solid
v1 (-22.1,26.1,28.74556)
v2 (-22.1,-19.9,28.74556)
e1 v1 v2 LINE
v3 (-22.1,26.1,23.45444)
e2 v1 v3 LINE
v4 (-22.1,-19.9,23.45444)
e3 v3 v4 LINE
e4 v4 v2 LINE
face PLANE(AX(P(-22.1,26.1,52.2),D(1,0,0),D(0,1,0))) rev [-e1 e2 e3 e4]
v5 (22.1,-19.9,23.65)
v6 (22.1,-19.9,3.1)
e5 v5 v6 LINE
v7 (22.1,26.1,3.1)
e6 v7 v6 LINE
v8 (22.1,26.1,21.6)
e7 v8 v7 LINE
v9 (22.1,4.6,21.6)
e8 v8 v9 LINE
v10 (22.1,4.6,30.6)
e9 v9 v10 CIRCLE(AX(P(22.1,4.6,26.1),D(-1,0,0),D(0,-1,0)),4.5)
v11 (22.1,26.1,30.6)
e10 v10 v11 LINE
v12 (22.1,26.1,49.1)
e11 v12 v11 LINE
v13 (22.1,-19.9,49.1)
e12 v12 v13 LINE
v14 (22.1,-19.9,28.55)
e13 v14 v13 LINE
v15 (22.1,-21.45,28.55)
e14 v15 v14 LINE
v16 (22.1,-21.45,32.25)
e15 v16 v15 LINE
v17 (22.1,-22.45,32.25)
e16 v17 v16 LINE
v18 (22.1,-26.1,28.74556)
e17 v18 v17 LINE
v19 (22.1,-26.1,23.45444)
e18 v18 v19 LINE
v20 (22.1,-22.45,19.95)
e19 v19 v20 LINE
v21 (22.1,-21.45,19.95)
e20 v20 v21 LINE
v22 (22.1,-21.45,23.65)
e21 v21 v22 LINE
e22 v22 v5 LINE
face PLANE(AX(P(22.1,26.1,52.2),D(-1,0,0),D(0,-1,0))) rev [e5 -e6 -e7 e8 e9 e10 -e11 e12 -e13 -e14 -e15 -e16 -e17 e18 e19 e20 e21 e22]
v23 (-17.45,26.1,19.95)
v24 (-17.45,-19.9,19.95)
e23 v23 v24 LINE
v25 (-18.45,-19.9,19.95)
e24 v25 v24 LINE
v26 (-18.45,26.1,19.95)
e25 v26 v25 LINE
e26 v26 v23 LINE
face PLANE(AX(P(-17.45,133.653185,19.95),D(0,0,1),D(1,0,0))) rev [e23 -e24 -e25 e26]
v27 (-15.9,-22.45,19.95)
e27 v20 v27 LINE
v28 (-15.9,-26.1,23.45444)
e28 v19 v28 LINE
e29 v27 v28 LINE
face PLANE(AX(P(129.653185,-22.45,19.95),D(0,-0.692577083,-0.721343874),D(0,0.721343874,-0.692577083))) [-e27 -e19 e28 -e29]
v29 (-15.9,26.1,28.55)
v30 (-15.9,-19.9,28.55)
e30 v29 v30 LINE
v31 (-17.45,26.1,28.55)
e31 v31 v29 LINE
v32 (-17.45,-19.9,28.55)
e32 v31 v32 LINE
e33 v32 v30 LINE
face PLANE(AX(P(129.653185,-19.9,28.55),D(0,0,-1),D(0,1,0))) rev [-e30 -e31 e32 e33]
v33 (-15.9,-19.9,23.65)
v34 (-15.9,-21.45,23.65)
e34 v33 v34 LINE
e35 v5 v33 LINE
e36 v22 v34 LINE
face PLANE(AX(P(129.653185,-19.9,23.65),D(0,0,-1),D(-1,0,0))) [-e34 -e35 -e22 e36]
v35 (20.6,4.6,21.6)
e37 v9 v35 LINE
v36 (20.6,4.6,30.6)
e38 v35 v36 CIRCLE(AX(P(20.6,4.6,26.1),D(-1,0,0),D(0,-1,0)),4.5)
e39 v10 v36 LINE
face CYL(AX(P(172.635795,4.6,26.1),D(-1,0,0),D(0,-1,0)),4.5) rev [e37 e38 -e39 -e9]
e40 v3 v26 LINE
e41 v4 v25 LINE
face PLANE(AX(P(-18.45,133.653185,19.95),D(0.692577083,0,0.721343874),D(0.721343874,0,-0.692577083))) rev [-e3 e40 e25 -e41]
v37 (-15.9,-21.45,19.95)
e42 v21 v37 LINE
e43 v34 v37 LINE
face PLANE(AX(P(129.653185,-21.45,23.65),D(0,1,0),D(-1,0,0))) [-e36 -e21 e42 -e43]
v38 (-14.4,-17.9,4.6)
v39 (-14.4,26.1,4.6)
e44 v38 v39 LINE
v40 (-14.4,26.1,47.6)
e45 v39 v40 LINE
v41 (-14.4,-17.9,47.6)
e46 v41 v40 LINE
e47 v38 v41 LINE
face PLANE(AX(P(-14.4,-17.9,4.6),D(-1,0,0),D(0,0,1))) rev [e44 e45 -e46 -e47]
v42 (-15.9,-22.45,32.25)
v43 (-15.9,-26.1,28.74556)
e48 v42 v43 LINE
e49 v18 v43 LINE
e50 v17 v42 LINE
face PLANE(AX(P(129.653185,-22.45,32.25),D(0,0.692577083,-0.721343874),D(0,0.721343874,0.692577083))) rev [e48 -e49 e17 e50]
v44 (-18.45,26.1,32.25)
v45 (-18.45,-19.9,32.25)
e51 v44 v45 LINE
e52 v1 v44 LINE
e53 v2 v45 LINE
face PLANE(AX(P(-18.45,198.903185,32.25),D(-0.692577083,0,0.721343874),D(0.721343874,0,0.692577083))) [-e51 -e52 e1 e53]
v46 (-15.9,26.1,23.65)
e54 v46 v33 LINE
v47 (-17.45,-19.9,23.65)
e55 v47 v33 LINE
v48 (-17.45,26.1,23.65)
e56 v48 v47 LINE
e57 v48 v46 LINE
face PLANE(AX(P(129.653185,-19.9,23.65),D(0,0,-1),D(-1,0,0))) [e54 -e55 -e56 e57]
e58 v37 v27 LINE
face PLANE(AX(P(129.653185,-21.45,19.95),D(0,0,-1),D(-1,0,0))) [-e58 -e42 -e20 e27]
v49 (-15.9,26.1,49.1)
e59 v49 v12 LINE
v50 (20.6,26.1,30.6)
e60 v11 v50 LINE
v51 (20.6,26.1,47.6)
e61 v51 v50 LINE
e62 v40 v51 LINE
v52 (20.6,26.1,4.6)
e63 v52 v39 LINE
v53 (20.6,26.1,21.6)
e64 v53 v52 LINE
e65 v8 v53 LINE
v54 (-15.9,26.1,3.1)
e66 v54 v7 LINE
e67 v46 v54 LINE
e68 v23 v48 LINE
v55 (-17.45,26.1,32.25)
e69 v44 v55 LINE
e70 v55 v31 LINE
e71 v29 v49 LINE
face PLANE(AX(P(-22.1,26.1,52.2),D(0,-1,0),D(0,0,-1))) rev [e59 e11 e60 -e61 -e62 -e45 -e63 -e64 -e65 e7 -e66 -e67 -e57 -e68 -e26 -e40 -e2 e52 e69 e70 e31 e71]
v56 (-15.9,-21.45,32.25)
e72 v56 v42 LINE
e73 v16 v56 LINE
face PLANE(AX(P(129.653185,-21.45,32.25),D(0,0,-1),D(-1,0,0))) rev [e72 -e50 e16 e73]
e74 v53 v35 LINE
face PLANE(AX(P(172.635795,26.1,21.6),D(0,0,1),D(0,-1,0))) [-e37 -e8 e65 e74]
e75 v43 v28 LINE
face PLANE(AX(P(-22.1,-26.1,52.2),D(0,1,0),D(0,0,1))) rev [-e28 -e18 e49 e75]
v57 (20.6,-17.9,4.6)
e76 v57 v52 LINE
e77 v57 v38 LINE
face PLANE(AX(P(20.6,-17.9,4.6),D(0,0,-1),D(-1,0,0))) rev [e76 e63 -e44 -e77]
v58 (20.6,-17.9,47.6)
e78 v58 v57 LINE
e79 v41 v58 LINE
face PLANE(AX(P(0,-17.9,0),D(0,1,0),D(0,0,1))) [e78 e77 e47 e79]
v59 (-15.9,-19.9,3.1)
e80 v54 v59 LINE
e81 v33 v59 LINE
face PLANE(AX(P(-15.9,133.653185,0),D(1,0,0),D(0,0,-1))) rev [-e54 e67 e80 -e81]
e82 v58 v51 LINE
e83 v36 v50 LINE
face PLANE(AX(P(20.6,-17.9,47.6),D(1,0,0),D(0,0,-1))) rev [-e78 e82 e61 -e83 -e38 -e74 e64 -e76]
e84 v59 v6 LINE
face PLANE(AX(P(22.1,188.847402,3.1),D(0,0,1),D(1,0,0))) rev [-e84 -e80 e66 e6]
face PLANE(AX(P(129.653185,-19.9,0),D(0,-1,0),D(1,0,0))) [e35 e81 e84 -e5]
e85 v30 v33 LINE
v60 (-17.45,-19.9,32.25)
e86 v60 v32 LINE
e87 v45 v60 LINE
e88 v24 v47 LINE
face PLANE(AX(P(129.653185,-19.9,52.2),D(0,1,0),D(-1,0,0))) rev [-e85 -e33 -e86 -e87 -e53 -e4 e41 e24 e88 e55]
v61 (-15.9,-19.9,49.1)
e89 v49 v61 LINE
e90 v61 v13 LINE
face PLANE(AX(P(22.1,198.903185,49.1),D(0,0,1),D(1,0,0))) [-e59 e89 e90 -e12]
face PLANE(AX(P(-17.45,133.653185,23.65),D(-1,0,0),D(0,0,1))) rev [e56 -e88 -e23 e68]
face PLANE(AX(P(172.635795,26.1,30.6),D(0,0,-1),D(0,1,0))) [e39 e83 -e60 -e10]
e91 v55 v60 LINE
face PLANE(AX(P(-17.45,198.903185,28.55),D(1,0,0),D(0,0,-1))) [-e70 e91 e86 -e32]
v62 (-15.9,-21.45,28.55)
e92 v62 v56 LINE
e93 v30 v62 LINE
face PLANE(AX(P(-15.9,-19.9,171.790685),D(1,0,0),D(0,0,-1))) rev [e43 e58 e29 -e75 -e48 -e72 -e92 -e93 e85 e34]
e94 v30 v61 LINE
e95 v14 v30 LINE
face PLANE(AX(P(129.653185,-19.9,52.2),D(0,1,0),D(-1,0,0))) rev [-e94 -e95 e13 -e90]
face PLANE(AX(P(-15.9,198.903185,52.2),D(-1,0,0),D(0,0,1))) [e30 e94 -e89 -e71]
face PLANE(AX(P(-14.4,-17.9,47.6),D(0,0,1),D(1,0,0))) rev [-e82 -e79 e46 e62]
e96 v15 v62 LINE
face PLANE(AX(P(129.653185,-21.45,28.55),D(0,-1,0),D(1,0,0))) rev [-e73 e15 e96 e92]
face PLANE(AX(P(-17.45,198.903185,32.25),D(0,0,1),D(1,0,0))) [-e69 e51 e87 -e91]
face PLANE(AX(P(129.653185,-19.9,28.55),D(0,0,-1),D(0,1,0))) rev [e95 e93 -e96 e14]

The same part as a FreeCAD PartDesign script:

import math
import FreeCAD as App
import Part
import Sketcher
from FreeCAD import Vector
Q = App.Units.Quantity


def add_polygon(sketch, points):
    """Adds a closed chain of lines whose ends are joined by coincident constraints."""
    first, n = sketch.GeometryCount, len(points)
    for a, b in zip(points, points[1:] + points[:1]):
        sketch.addGeometry(Part.LineSegment(App.Vector(*a, 0), App.Vector(*b, 0)), False)
    for i in range(n):
        sketch.addConstraint(Sketcher.Constraint("Coincident", first + i, 2, first + (i + 1) % n, 1))

doc = App.newDocument("Part")
body = doc.addObject("PartDesign::Body", "Body")

# Sketch on XY plane
sketch1 = doc.addObject("Sketcher::SketchObject", "Sketch")
body.addObject(sketch1)
sketch1.AttachmentSupport = (doc.XY_Plane, [""])
sketch1.MapMode = "FlatFace"
add_polygon(sketch1, [(-22, 26), (-22, -26), (22, -26), (22, 26)])  # lines 0-3
sketch1.addConstraint([
    Sketcher.Constraint("Vertical", 0),
    Sketcher.Constraint("Horizontal", 1),
    Sketcher.Constraint("Vertical", 2),
    Sketcher.Constraint("Horizontal", 3),
    Sketcher.Constraint("Symmetric", 0, 2, 2, 2, -1, 1),
    Sketcher.Constraint("DistanceX", 1, 1, 1, 2, Q("44.2 mm")),
    Sketcher.Constraint("DistanceY", 0, 2, 0, 1, Q("52.2 mm")),
])
pad1 = doc.addObject("PartDesign::Pad", "Pad")
body.addObject(pad1)
pad1.Profile = sketch1
pad1.Length = 52.2

# Sketch on YZ plane
sketch2 = doc.addObject("Sketcher::SketchObject", "Sketch001")
body.addObject(sketch2)
sketch2.AttachmentSupport = (doc.YZ_Plane, [""])
sketch2.MapMode = "FlatFace"
sketch2.AttachmentOffset = App.Placement(Vector(0, 0, 22.1), App.Rotation())
add_polygon(sketch2, [(-19.9, 28.6), (-19.9, 201.4), (-295.7, 315.1), (-409.5, 39.2), (-133.7, -74.6), (-26.1, 28.7), (-22.4, 32.2), (-21.4, 32.2), (-21.4, 28.6)])  # lines 0-8
sketch2.addConstraint([
    Sketcher.Constraint("Vertical", 0),
    Sketcher.Constraint("Horizontal", 6),
    Sketcher.Constraint("Vertical", 7),
    Sketcher.Constraint("Horizontal", 8),
    Sketcher.Constraint("Perpendicular", 1, 2),
    Sketcher.Constraint("Perpendicular", 2, 3),
    Sketcher.Constraint("Parallel", 4, 5),
    Sketcher.Constraint("Equal", 1, 3),
    Sketcher.Constraint("DistanceX", 6, 1, 6, 2, Q("1 mm")),
    Sketcher.Constraint("DistanceY", 7, 2, 7, 1, Q("3.7 mm")),
    Sketcher.Constraint("DistanceX", 8, 1, 8, 2, Q("1.55 mm")),
    Sketcher.Constraint("DistanceX", 0, 2, -1, 1, Q("19.9 mm")),
    Sketcher.Constraint("DistanceX", 4, 2, -1, 1, Q("26.1 mm")),
    Sketcher.Constraint("Distance", 5, Q("5.06 mm")),
    Sketcher.Constraint("DistanceY", -1, 1, 5, 2, Q("32.25 mm")),
    Sketcher.Constraint("DistanceY", 0, 1, 0, 2, Q("172.802291 mm")),
    Sketcher.Constraint("DistanceY", 3, 2, -1, 1, Q("74.553898 mm")),
    Sketcher.Constraint("Distance", 1, Q("298.304581 mm")),
])
pocket1 = doc.addObject("PartDesign::Pocket", "Pocket")
body.addObject(pocket1)
pocket1.Profile = sketch2
pocket1.Type = "ThroughAll"
pocket1.Midplane = True

# Sketch on YZ plane
sketch3 = doc.addObject("Sketcher::SketchObject", "Sketch002")
body.addObject(sketch3)
sketch3.AttachmentSupport = (doc.YZ_Plane, [""])
sketch3.MapMode = "FlatFace"
sketch3.AttachmentOffset = App.Placement(Vector(0, 0, 22.1), App.Rotation())
add_polygon(sketch3, [(-19.9, -149.2), (-19.9, 23.6), (-21.4, 23.6), (-21.4, 19.9), (-22.4, 19.9), (-26.1, 23.5), (-133.7, 126.8), (-409.5, 13), (-295.7, -262.9)])  # lines 0-8
sketch3.addConstraint([
    Sketcher.Constraint("Vertical", 0),
    Sketcher.Constraint("Horizontal", 1),
    Sketcher.Constraint("Vertical", 2),
    Sketcher.Constraint("Horizontal", 3),
    Sketcher.Constraint("Parallel", 4, 5),
    Sketcher.Constraint("Perpendicular", 6, 7),
    Sketcher.Constraint("Perpendicular", 7, 8),
    Sketcher.Constraint("Equal", 6, 8),
    Sketcher.Constraint("DistanceX", 3, 2, 3, 1, Q("1 mm")),
    Sketcher.Constraint("DistanceY", 2, 2, 2, 1, Q("3.7 mm")),
    Sketcher.Constraint("DistanceX", 1, 2, 1, 1, Q("1.55 mm")),
    Sketcher.Constraint("DistanceX", 0, 2, -1, 1, Q("19.9 mm")),
    Sketcher.Constraint("DistanceX", 4, 2, -1, 1, Q("26.1 mm")),
    Sketcher.Constraint("Distance", 4, Q("5.06 mm")),
    Sketcher.Constraint("DistanceY", -1, 1, 0, 2, Q("23.65 mm")),
    Sketcher.Constraint("DistanceY", 0, 1, 0, 2, Q("172.802291 mm")),
    Sketcher.Constraint("DistanceY", -1, 1, 5, 2, Q("126.753898 mm")),
    Sketcher.Constraint("Distance", 6, Q("298.304581 mm")),
])
pocket2 = doc.addObject("PartDesign::Pocket", "Pocket001")
body.addObject(pocket2)
pocket2.Profile = sketch3
pocket2.Type = "ThroughAll"
pocket2.Midplane = True

# Sketch on XZ plane
sketch4 = doc.addObject("Sketcher::SketchObject", "Sketch003")
body.addObject(sketch4)
sketch4.AttachmentSupport = (doc.XZ_Plane, [""])
sketch4.MapMode = "FlatFace"
sketch4.AttachmentOffset = App.Placement(Vector(0, 0, -26.1), App.Rotation())
add_polygon(sketch4, [(-15.9, 191.3), (-15.9, 28.6), (-17.4, 28.6), (-17.4, 32.2), (-18.4, 32.2), (-22.1, 28.7), (-122.5, -67.6), (-379.8, 38.3), (-273.2, 297.2)])  # lines 0-8
sketch4.addConstraint([
    Sketcher.Constraint("Vertical", 0),
    Sketcher.Constraint("Horizontal", 1),
    Sketcher.Constraint("Vertical", 2),
    Sketcher.Constraint("Horizontal", 3),
    Sketcher.Constraint("Parallel", 4, 5),
    Sketcher.Constraint("Perpendicular", 6, 7),
    Sketcher.Constraint("Perpendicular", 7, 8),
    Sketcher.Constraint("Equal", 6, 8),
    Sketcher.Constraint("DistanceX", 3, 2, 3, 1, Q("1 mm")),
    Sketcher.Constraint("DistanceY", 2, 1, 2, 2, Q("3.7 mm")),
    Sketcher.Constraint("DistanceX", 1, 2, 1, 1, Q("1.55 mm")),
    Sketcher.Constraint("DistanceX", 0, 2, -1, 1, Q("15.9 mm")),
    Sketcher.Constraint("DistanceX", 4, 2, -1, 1, Q("22.1 mm")),
    Sketcher.Constraint("Distance", 4, Q("5.06 mm")),
    Sketcher.Constraint("DistanceY", -1, 1, 0, 2, Q("28.55 mm")),
    Sketcher.Constraint("DistanceY", 0, 2, 0, 1, Q("162.78311 mm")),
    Sketcher.Constraint("Distance", 5, Q("139.13311 mm")),
    Sketcher.Constraint("Distance", 6, Q("278.266219 mm")),
])
pocket3 = doc.addObject("PartDesign::Pocket", "Pocket002")
body.addObject(pocket3)
pocket3.Profile = sketch4
pocket3.Type = "TwoLengths"
pocket3.Length = 78.059003
pocket3.Length2 = 46

# Sketch on XZ plane
sketch5 = doc.addObject("Sketcher::SketchObject", "Sketch004")
body.addObject(sketch5)
sketch5.AttachmentSupport = (doc.XZ_Plane, [""])
sketch5.MapMode = "FlatFace"
sketch5.AttachmentOffset = App.Placement(Vector(0, 0, -26.1), App.Rotation())
add_polygon(sketch5, [(-15.9, 23.6), (-15.9, -139.1), (-273.2, -245), (-379.8, 13.9), (-122.5, 119.8), (-22.1, 23.5), (-18.4, 19.9), (-17.4, 19.9), (-17.4, 23.6)])  # lines 0-8
sketch5.addConstraint([
    Sketcher.Constraint("Vertical", 0),
    Sketcher.Constraint("Horizontal", 6),
    Sketcher.Constraint("Vertical", 7),
    Sketcher.Constraint("Horizontal", 8),
    Sketcher.Constraint("Perpendicular", 1, 2),
    Sketcher.Constraint("Perpendicular", 2, 3),
    Sketcher.Constraint("Parallel", 4, 5),
    Sketcher.Constraint("Equal", 1, 3),
    Sketcher.Constraint("DistanceX", 6, 1, 6, 2, Q("1 mm")),
    Sketcher.Constraint("DistanceY", 7, 1, 7, 2, Q("3.7 mm")),
    Sketcher.Constraint("DistanceX", 8, 1, 8, 2, Q("1.55 mm")),
    Sketcher.Constraint("DistanceX", 0, 2, -1, 1, Q("15.9 mm")),
    Sketcher.Constraint("DistanceX", 4, 2, -1, 1, Q("22.1 mm")),
    Sketcher.Constraint("Distance", 5, Q("5.06 mm")),
    Sketcher.Constraint("DistanceY", -1, 1, 5, 2, Q("19.95 mm")),
    Sketcher.Constraint("DistanceY", 0, 2, 0, 1, Q("162.78311 mm")),
    Sketcher.Constraint("Distance", 1, Q("278.266219 mm")),
    Sketcher.Constraint("Distance", 2, Q("280.017278 mm")),
])
pocket4 = doc.addObject("PartDesign::Pocket", "Pocket003")
body.addObject(pocket4)
pocket4.Profile = sketch5
pocket4.Type = "TwoLengths"
pocket4.Length = 78.059003
pocket4.Length2 = 46

# Sketch on XY plane
sketch6 = doc.addObject("Sketcher::SketchObject", "Sketch005")
body.addObject(sketch6)
sketch6.AttachmentSupport = (doc.XY_Plane, [""])
sketch6.MapMode = "FlatFace"
sketch6.AttachmentOffset = App.Placement(Vector(0, 0, 28.55), App.Rotation())
add_polygon(sketch6, [(-16, -20), (-161, -20), (-358, -217), (-213, -362), (-16, -165)])  # lines 0-4
sketch6.addConstraint([
    Sketcher.Constraint("Horizontal", 0),
    Sketcher.Constraint("Vertical", 4),
    Sketcher.Constraint("Perpendicular", 1, 2),
    Sketcher.Constraint("Perpendicular", 2, 3),
    Sketcher.Constraint("Equal", 1, 3),
    Sketcher.Constraint("DistanceY", 0, 2, -1, 1, Q("19.9 mm")),
    Sketcher.Constraint("DistanceX", 3, 2, -1, 1, Q("15.9 mm")),
    Sketcher.Constraint("DistanceX", 0, 2, 0, 1, Q("145.322842 mm")),
    Sketcher.Constraint("DistanceY", 4, 1, 4, 2, Q("145.316491 mm")),
    Sketcher.Constraint("DistanceY", 2, 2, -1, 1, Q("361.9702 mm")),
])
pocket5 = doc.addObject("PartDesign::Pocket", "Pocket004")
body.addObject(pocket5)
pocket5.Profile = sketch6
pocket5.Type = "ThroughAll"
pocket5.Midplane = True

# Sketch on XZ plane
sketch7 = doc.addObject("Sketcher::SketchObject", "Sketch006")
body.addObject(sketch7)
sketch7.AttachmentSupport = (doc.XZ_Plane, [""])
sketch7.MapMode = "FlatFace"
sketch7.AttachmentOffset = App.Placement(Vector(0, 0, -26.1), App.Rotation())
add_polygon(sketch7, [(164, 49), (-158, 49), (-158, 333), (164, 333)])  # lines 0-3
sketch7.addConstraint([
    Sketcher.Constraint("Horizontal", 0),
    Sketcher.Constraint("Vertical", 1),
    Sketcher.Constraint("Horizontal", 2),
    Sketcher.Constraint("Vertical", 3),
    Sketcher.Constraint("DistanceY", -1, 1, 0, 2, Q("49.1 mm")),
    Sketcher.Constraint("DistanceX", 0, 2, 0, 1, Q("322.255937 mm")),
    Sketcher.Constraint("DistanceY", 1, 1, 1, 2, Q("284.255937 mm")),
    Sketcher.Constraint("DistanceX", 0, 2, -1, 1, Q("158.027968 mm")),
])
pocket6 = doc.addObject("PartDesign::Pocket", "Pocket005")
body.addObject(pocket6)
pocket6.Profile = sketch7
pocket6.Type = "ThroughAll"
pocket6.Midplane = True

# Sketch on XZ plane
sketch8 = doc.addObject("Sketcher::SketchObject", "Sketch007")
body.addObject(sketch8)
sketch8.AttachmentSupport = (doc.XZ_Plane, [""])
sketch8.MapMode = "FlatFace"
sketch8.AttachmentOffset = App.Placement(Vector(0, 0, -26.1), App.Rotation())
add_polygon(sketch8, [(-153, 3), (160, 3), (160, -272), (-153, -272)])  # lines 0-3
sketch8.addConstraint([
    Sketcher.Constraint("Horizontal", 0),
    Sketcher.Constraint("Vertical", 1),
    Sketcher.Constraint("Horizontal", 2),
    Sketcher.Constraint("Vertical", 3),
    Sketcher.Constraint("DistanceY", -1, 1, 0, 2, Q("3.1 mm")),
    Sketcher.Constraint("DistanceX", 0, 1, 0, 2, Q("313.17492 mm")),
    Sketcher.Constraint("DistanceY", 1, 2, 1, 1, Q("275.17492 mm")),
    Sketcher.Constraint("DistanceX", -1, 1, 0, 2, Q("159.68746 mm")),
])
pocket7 = doc.addObject("PartDesign::Pocket", "Pocket006")
body.addObject(pocket7)
pocket7.Profile = sketch8
pocket7.Type = "ThroughAll"
pocket7.Midplane = True

# Sketch on XZ plane
sketch9 = doc.addObject("Sketcher::SketchObject", "Sketch008")
body.addObject(sketch9)
sketch9.AttachmentSupport = (doc.XZ_Plane, [""])
sketch9.MapMode = "FlatFace"
sketch9.AttachmentOffset = App.Placement(Vector(0, 0, -26.1), App.Rotation())
add_polygon(sketch9, [(-14, 5), (-14, 48), (21, 48), (21, 5)])  # lines 0-3
sketch9.addConstraint([
    Sketcher.Constraint("Vertical", 0),
    Sketcher.Constraint("Horizontal", 1),
    Sketcher.Constraint("Vertical", 2),
    Sketcher.Constraint("Horizontal", 3),
    Sketcher.Constraint("DistanceX", 1, 1, 1, 2, Q("35 mm")),
    Sketcher.Constraint("DistanceY", 0, 1, 0, 2, Q("43 mm")),
    Sketcher.Constraint("DistanceX", 0, 2, -1, 1, Q("14.4 mm")),
    Sketcher.Constraint("DistanceY", -1, 1, 0, 2, Q("47.6 mm")),
])
pocket8 = doc.addObject("PartDesign::Pocket", "Pocket007")
body.addObject(pocket8)
pocket8.Profile = sketch9
pocket8.Length = 44
pocket8.Reversed = True

# Sketch on YZ plane
sketch10 = doc.addObject("Sketcher::SketchObject", "Sketch009")
body.addObject(sketch10)
sketch10.AttachmentSupport = (doc.YZ_Plane, [""])
sketch10.MapMode = "FlatFace"
sketch10.AttachmentOffset = App.Placement(Vector(0, 0, 22.1), App.Rotation())
sketch10.addGeometry([
    Part.LineSegment(Vector(4.6, 21.6, 0), Vector(26.1, 21.6, 0)),
    Part.LineSegment(Vector(26.1, 21.6, 0), Vector(26.1, 30.6, 0)),
    Part.LineSegment(Vector(26.1, 30.6, 0), Vector(4.6, 30.6, 0)),
    Part.ArcOfCircle(Part.Circle(Vector(4.6, 26.1, 0), Vector(0, 0, 1), 4.5), math.radians(90), math.radians(270)),
], False)
sketch10.addConstraint([
    Sketcher.Constraint("Coincident", 0, 2, 1, 1),
    Sketcher.Constraint("Coincident", 1, 2, 2, 1),
    Sketcher.Constraint("Tangent", 2, 2, 3, 1),
    Sketcher.Constraint("Tangent", 3, 2, 0, 1),
    Sketcher.Constraint("Horizontal", 0),
    Sketcher.Constraint("Vertical", 1),
    Sketcher.Constraint("Horizontal", 2),
    Sketcher.Constraint("Radius", 3, Q("4.5 mm")),
    Sketcher.Constraint("DistanceX", 0, 1, 0, 2, Q("21.5 mm")),
    Sketcher.Constraint("DistanceX", -1, 1, 3, 3, Q("4.6 mm")),
    Sketcher.Constraint("DistanceY", -1, 1, 3, 3, Q("26.1 mm")),
])
pocket9 = doc.addObject("PartDesign::Pocket", "Pocket008")
body.addObject(pocket9)
pocket9.Profile = sketch10
pocket9.Type = "TwoLengths"
pocket9.Length = 72.032809
pocket9.Length2 = 1.5
pocket9.Reversed = True

doc.recompute()
